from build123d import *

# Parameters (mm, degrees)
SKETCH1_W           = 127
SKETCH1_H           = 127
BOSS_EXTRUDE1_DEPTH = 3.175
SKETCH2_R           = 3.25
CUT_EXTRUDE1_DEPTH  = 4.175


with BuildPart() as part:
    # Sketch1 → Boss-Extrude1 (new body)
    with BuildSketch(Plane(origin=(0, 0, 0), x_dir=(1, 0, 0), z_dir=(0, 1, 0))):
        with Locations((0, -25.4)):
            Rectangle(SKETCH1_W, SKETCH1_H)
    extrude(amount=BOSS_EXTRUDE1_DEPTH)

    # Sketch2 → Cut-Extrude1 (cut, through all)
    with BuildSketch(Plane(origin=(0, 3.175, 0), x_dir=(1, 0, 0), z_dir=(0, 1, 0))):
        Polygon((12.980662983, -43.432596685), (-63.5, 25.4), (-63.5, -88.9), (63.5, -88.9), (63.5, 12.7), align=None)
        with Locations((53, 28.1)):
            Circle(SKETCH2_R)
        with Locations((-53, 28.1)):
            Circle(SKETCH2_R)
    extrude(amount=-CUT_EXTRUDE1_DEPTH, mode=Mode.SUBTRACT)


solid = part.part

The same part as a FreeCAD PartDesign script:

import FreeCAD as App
import Part
import Sketcher
from FreeCAD import Vector
Q = App.Units.Quantity

doc = App.newDocument("Part")
body = doc.addObject("PartDesign::Body", "Body")

sketch1 = doc.addObject("Sketcher::SketchObject", "Sketch")
body.addObject(sketch1)
sketch1.AttachmentSupport = (doc.XZ_Plane, [""])
sketch1.MapMode = "FlatFace"
sketch1.addGeometry(Part.LineSegment(Vector(-63.5, -38.1, 0), Vector(-63.5, 88.9, 0)), False)
sketch1.addGeometry(Part.LineSegment(Vector(-63.5, 88.9, 0), Vector(63.5, 88.9, 0)), False)
sketch1.addGeometry(Part.LineSegment(Vector(63.5, 88.9, 0), Vector(63.5, -38.1, 0)), False)
sketch1.addGeometry(Part.LineSegment(Vector(63.5, -38.1, 0), Vector(-63.5, -38.1, 0)), False)
sketch1.addConstraint(Sketcher.Constraint("Coincident", 0, 2, 1, 1))
sketch1.addConstraint(Sketcher.Constraint("Coincident", 1, 2, 2, 1))
sketch1.addConstraint(Sketcher.Constraint("Coincident", 2, 2, 3, 1))
sketch1.addConstraint(Sketcher.Constraint("Coincident", 3, 2, 0, 1))
sketch1.addConstraint(Sketcher.Constraint("Vertical", 0))
sketch1.addConstraint(Sketcher.Constraint("Horizontal", 1))
sketch1.addConstraint(Sketcher.Constraint("Vertical", 2))
sketch1.addConstraint(Sketcher.Constraint("Horizontal", 3))
sketch1.addConstraint(Sketcher.Constraint("Equal", 3, 0))
sketch1.addConstraint(Sketcher.Constraint("DistanceX", 1, 1, 1, 2, Q("5 in")))
sketch1.addConstraint(Sketcher.Constraint("DistanceX", 0, 2, -1, 1, Q("2.5 in")))
sketch1.addConstraint(Sketcher.Constraint("DistanceY", -1, 1, 0, 2, Q("3.5 in")))
pad1 = doc.addObject("PartDesign::Pad", "Pad")
body.addObject(pad1)
pad1.Profile = sketch1
pad1.Length = Q("0.125 in")
pad1.Reversed = True

sketch2 = doc.addObject("Sketcher::SketchObject", "Sketch001")
body.addObject(sketch2)
sketch2.AttachmentSupport = (doc.XZ_Plane, [""])
sketch2.MapMode = "FlatFace"
sketch2.AttachmentOffset = App.Placement(Vector(0, 0, -0.125 * 25.4), App.Rotation())
sketch2.addGeometry(Part.LineSegment(Vector(12.980663, 43.432597, 0), Vector(-63.5, -25.4, 0)), False)
sketch2.addGeometry(Part.LineSegment(Vector(-63.5, -25.4, 0), Vector(-63.5, 88.9, 0)), False)
sketch2.addGeometry(Part.LineSegment(Vector(-63.5, 88.9, 0), Vector(63.5, 88.9, 0)), False)
sketch2.addGeometry(Part.LineSegment(Vector(63.5, 88.9, 0), Vector(63.5, -12.7, 0)), False)
sketch2.addGeometry(Part.LineSegment(Vector(63.5, -12.7, 0), Vector(12.980663, 43.432597, 0)), False)
sketch2.addGeometry(Part.Circle(Vector(53, -28.1, 0), Vector(0, 0, 1), 3.25), False)
sketch2.addGeometry(Part.Circle(Vector(-53, -28.1, 0), Vector(0, 0, 1), 3.25), False)
sketch2.addConstraint(Sketcher.Constraint("Coincident", 0, 2, 1, 1))
sketch2.addConstraint(Sketcher.Constraint("Coincident", 1, 2, 2, 1))
sketch2.addConstraint(Sketcher.Constraint("Coincident", 2, 2, 3, 1))
sketch2.addConstraint(Sketcher.Constraint("Coincident", 3, 2, 4, 1))
sketch2.addConstraint(Sketcher.Constraint("Coincident", 4, 2, 0, 1))
sketch2.addConstraint(Sketcher.Constraint("Vertical", 1))
sketch2.addConstraint(Sketcher.Constraint("Horizontal", 2))
sketch2.addConstraint(Sketcher.Constraint("Vertical", 3))
sketch2.addConstraint(Sketcher.Constraint("Equal", 5, 6))
sketch2.addConstraint(Sketcher.Constraint("Symmetric", 5, 3, 6, 3, -2))
sketch2.addConstraint(Sketcher.Constraint("Perpendicular", 0, 4))
sketch2.addConstraint(Sketcher.Constraint("DistanceX", 2, 1, 2, 2, Q("5 in")))
sketch2.addConstraint(Sketcher.Constraint("DistanceY", 3, 2, 3, 1, Q("4 in")))
sketch2.addConstraint(Sketcher.Constraint("DistanceY", 1, 1, 1, 2, Q("4.5 in")))
sketch2.addConstraint(Sketcher.Constraint("DistanceY", 0, 2, -1, 1, Q("1 in")))
sketch2.addConstraint(Sketcher.Constraint("DistanceX", 0, 2, -1, 1, Q("2.5 in")))
sketch2.addConstraint(Sketcher.Constraint("Diameter", 5, Q("6.5 mm")))
sketch2.addConstraint(Sketcher.Constraint("DistanceX", -1, 1, 5, 3, Q("53 mm")))
sketch2.addConstraint(Sketcher.Constraint("DistanceY", 5, 3, -1, 1, Q("28.1 mm")))
sketch2.addConstraint(Sketcher.Constraint("Distance", 0, Q("102.894209 mm")))
pocket1 = doc.addObject("PartDesign::Pocket", "Pocket")
body.addObject(pocket1)
pocket1.Profile = sketch2
pocket1.Type = "ThroughAll"
pocket1.Reversed = True

doc.recompute()
